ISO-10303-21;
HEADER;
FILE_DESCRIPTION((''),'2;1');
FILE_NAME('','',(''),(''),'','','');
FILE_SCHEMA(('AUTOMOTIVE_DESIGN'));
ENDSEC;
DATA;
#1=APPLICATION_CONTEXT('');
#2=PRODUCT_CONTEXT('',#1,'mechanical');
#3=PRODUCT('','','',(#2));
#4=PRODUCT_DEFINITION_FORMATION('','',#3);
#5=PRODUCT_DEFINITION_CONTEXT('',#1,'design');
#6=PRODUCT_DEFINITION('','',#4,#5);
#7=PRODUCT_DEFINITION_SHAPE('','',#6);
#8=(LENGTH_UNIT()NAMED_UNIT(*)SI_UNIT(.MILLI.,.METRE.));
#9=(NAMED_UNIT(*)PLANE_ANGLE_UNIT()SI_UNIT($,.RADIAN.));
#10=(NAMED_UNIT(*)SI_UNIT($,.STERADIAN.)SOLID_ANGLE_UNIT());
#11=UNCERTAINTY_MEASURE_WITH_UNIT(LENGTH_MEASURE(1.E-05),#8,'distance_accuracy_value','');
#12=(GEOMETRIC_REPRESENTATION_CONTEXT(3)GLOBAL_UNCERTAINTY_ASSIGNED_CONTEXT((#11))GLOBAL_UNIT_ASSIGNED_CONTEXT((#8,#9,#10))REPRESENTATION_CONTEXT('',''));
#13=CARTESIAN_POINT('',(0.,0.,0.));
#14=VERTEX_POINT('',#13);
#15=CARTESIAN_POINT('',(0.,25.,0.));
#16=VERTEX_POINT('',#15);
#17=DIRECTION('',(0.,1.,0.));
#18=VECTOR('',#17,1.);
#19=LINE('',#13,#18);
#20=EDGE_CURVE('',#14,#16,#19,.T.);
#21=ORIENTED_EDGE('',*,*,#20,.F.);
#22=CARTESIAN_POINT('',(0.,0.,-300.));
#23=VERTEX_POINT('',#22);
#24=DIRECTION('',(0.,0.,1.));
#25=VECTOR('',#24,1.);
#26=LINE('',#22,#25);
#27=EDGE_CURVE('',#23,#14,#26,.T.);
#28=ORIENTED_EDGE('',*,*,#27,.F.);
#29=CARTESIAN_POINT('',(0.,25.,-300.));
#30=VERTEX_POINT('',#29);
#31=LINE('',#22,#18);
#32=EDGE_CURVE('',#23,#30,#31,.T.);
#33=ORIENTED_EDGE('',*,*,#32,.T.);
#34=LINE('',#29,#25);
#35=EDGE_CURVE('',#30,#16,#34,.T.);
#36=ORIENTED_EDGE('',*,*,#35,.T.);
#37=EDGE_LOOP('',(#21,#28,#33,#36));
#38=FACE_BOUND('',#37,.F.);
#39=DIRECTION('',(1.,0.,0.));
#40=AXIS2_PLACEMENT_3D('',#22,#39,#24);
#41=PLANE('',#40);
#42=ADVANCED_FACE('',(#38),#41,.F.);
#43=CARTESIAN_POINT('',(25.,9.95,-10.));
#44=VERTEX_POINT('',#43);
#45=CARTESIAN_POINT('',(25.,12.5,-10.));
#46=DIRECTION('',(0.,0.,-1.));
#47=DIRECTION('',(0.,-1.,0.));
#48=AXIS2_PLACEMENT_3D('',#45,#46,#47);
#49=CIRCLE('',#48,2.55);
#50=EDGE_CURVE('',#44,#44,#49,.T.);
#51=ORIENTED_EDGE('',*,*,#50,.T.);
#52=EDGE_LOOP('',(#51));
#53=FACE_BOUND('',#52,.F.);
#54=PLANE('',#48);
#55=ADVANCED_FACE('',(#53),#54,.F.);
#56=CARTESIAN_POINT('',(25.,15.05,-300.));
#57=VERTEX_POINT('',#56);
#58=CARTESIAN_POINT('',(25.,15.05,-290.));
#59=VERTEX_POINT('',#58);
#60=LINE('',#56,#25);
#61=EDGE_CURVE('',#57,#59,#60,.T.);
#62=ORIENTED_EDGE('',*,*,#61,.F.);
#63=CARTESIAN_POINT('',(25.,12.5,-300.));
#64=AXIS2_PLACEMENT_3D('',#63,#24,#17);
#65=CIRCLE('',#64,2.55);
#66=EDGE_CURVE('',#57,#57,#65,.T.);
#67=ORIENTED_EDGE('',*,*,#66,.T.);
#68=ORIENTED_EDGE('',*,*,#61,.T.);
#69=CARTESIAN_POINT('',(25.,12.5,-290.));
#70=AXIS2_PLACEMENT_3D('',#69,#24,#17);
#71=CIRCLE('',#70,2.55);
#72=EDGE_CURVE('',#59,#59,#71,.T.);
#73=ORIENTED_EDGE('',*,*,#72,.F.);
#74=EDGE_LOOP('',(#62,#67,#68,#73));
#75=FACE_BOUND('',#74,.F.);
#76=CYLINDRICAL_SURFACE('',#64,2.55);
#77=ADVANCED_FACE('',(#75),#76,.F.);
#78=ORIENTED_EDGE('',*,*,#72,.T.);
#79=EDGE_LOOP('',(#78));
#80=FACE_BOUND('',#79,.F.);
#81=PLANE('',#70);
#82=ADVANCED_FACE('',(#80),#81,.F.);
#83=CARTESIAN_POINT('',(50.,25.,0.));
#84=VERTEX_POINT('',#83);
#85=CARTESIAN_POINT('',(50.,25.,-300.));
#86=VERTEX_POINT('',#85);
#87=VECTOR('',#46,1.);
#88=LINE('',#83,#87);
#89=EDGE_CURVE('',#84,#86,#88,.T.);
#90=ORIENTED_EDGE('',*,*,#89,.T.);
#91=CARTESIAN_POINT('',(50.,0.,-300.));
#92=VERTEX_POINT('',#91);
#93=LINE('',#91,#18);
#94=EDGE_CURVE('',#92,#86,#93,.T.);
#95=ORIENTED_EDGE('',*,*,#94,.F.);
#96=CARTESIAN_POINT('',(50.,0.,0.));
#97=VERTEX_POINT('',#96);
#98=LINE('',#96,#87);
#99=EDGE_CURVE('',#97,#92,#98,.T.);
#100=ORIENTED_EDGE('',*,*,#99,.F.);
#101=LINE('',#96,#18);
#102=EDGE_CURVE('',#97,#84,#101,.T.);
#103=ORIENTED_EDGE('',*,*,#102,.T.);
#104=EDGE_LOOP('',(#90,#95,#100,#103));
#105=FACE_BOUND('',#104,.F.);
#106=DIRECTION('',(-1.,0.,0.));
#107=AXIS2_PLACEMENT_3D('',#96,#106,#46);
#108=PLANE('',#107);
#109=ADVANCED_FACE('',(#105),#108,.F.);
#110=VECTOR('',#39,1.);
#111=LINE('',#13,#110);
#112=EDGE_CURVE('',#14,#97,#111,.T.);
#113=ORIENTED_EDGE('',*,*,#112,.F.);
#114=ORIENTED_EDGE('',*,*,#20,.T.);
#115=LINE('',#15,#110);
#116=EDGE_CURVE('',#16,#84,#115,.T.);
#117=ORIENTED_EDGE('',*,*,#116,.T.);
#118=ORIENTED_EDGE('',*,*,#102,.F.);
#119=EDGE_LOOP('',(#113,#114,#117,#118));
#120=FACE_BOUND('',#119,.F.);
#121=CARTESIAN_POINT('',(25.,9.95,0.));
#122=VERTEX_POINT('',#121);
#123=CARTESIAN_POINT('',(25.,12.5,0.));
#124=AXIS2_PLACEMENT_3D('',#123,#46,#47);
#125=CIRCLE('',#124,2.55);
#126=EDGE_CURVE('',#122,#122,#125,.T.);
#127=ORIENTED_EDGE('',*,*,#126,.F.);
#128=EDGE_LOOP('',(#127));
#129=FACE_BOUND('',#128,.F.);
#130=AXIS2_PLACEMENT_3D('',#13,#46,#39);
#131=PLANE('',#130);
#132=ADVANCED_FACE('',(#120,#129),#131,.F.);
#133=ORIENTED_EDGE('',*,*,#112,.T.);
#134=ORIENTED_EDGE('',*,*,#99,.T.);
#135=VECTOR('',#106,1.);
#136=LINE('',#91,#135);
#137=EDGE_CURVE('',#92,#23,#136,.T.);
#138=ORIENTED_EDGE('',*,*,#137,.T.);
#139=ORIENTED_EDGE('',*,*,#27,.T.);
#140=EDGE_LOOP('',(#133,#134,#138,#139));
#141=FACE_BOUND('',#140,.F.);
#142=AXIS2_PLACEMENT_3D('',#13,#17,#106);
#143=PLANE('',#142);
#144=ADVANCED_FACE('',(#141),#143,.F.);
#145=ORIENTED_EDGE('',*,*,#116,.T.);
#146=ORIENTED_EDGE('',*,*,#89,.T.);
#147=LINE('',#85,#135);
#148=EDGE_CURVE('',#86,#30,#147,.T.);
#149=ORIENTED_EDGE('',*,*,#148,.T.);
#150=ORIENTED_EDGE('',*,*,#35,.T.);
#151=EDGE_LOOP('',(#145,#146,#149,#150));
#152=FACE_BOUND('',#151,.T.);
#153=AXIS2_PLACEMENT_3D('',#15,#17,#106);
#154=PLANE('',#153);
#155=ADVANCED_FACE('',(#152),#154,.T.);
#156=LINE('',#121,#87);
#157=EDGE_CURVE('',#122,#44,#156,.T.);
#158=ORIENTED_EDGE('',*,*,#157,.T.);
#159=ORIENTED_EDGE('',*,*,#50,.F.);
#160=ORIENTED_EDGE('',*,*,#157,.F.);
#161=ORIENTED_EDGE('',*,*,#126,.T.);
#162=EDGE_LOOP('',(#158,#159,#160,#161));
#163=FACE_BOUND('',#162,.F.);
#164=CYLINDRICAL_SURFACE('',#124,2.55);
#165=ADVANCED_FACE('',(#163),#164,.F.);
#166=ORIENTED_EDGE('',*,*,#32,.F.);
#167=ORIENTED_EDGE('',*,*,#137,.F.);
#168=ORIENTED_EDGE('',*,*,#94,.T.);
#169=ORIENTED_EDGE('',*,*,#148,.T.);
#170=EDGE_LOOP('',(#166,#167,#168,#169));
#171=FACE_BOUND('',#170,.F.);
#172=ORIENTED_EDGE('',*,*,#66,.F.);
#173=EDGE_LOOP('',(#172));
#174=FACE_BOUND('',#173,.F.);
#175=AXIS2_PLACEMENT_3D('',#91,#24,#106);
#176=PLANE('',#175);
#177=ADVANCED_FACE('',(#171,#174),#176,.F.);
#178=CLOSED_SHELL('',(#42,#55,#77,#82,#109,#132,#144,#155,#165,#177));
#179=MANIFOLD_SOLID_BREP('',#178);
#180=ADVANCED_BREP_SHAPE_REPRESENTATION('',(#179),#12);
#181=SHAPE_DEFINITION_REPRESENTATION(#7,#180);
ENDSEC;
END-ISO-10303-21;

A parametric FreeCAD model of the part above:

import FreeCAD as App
import Part
import Sketcher
Q = App.Units.Quantity

doc = App.newDocument("Part")
params = doc.addObject("Spreadsheet::Sheet", "Params")
for row, (alias, value) in enumerate([
    ("sketch1_width", "50 mm"),
    ("sketch1_height", "300 mm"),
    ("pad1_length", "25 mm"),
    ("sketch2_diameter", "5.1 mm"),
    ("hole_diameter", "5.1 mm"),
    ("hole_depth", "10 mm"),
    ("sketch3_diameter", "5.1 mm"),
    ("hole2_diameter", "5.1 mm"),
    ("hole2_depth", "10 mm"),
], start=1):
    params.set(f"A{row}", alias)
    params.set(f"B{row}", "=" + value)
    params.setAlias(f"B{row}", alias)

body = doc.addObject("PartDesign::Body", "Body")

# Sketch on XZ plane
sketch1 = body.newObject("Sketcher::SketchObject", "Sketch")
sketch1.AttachmentSupport = (doc.getObject("XZ_Plane"), [""])
sketch1.MapMode = "FlatFace"
sketch1.addGeometry([
    Part.LineSegment(App.Vector(0, -300, 0), App.Vector(0, 0, 0)),
    Part.LineSegment(App.Vector(0, 0, 0), App.Vector(50, 0, 0)),
    Part.LineSegment(App.Vector(50, 0, 0), App.Vector(50, -300, 0)),
    Part.LineSegment(App.Vector(50, -300, 0), App.Vector(0, -300, 0)),
], False)
sketch1.addConstraint([
    Sketcher.Constraint("Coincident", 0, 2, 1, 1),
    Sketcher.Constraint("Coincident", 1, 2, 2, 1),
    Sketcher.Constraint("Coincident", 2, 2, 3, 1),
    Sketcher.Constraint("Coincident", 3, 2, 0, 1),
    Sketcher.Constraint("Vertical", 0),
    Sketcher.Constraint("Horizontal", 1),
    Sketcher.Constraint("Vertical", 2),
    Sketcher.Constraint("Horizontal", 3),
    Sketcher.Constraint("Coincident", 0, 2, -1, 1),
    Sketcher.Constraint("DistanceX", 1, 1, 1, 2, Q("50 mm")),
    Sketcher.Constraint("DistanceY", 0, 1, 0, 2, Q("300 mm")),
])
sketch1.setExpression("Constraints[9]", "Params.sketch1_width")
sketch1.setExpression("Constraints[10]", "Params.sketch1_height")
pad1 = body.newObject("PartDesign::Pad", "Pad")
pad1.Profile = sketch1
pad1.setExpression("Length", "Params.pad1_length")
pad1.Reversed = True

# Sketch on XY plane
sketch2 = body.newObject("Sketcher::SketchObject", "Sketch001")
sketch2.AttachmentSupport = (doc.getObject("XY_Plane"), [""])
sketch2.MapMode = "FlatFace"
sketch2.AttachmentOffset = App.Placement(App.Vector(0, 0, -300), App.Rotation())
sketch2.addGeometry(Part.Circle(App.Vector(25, 12.5, 0), App.Vector(0, 0, 1), 2.5), False)
sketch2.addConstraint([
    Sketcher.Constraint("Diameter", 0, Q("5.1 mm")),
    Sketcher.Constraint("DistanceX", -1, 1, 0, 3, Q("25 mm")),
    Sketcher.Constraint("DistanceY", -1, 1, 0, 3, Q("12.5 mm")),
])
sketch2.setExpression("Constraints[0]", "Params.sketch2_diameter")
doc.recompute()
hole = body.newObject("PartDesign::Hole", "Hole")
hole.Profile = sketch2
hole.ThreadType = "None"
hole.setExpression("Diameter", "Params.hole_diameter")
hole.DepthType = "Dimension"
hole.setExpression("Depth", "Params.hole_depth")
hole.DrillPoint = "Flat"
hole.Reversed = True

# Sketch on XY plane
sketch3 = body.newObject("Sketcher::SketchObject", "Sketch002")
sketch3.AttachmentSupport = (doc.getObject("XY_Plane"), [""])
sketch3.MapMode = "FlatFace"
sketch3.addGeometry(Part.Circle(App.Vector(25, 12.5, 0), App.Vector(0, 0, 1), 2.5), False)
sketch3.addConstraint([
    Sketcher.Constraint("Diameter", 0, Q("5.1 mm")),
    Sketcher.Constraint("DistanceX", -1, 1, 0, 3, Q("25 mm")),
    Sketcher.Constraint("DistanceY", -1, 1, 0, 3, Q("12.5 mm")),
])
sketch3.setExpression("Constraints[0]", "Params.sketch3_diameter")
doc.recompute()
hole2 = body.newObject("PartDesign::Hole", "Hole001")
hole2.Profile = sketch3
hole2.ThreadType = "None"
hole2.setExpression("Diameter", "Params.hole2_diameter")
hole2.DepthType = "Dimension"
hole2.setExpression("Depth", "Params.hole2_depth")
hole2.DrillPoint = "Flat"

doc.recompute()
